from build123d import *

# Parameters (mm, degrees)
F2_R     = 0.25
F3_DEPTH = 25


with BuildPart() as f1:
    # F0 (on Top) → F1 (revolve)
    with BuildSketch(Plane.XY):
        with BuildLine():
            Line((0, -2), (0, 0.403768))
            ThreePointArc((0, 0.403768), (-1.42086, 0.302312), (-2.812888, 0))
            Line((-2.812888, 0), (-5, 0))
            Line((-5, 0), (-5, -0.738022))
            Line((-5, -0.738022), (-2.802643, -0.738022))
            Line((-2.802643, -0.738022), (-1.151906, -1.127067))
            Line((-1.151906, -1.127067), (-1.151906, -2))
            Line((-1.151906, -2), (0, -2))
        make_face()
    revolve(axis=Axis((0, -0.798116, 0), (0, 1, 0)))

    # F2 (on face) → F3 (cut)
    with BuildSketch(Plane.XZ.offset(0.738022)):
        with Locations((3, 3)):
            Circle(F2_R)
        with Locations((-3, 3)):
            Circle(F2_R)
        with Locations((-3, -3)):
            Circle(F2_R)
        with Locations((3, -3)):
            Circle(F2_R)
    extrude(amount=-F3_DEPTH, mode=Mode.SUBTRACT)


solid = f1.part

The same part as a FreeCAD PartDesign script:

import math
import FreeCAD as App
import Part
import Sketcher
Q = App.Units.Quantity

doc = App.newDocument("Part")
body = doc.addObject("PartDesign::Body", "Body")

sketch1 = doc.addObject("Sketcher::SketchObject", "Sketch")
body.addObject(sketch1)
sketch1.AttachmentSupport = (doc.XY_Plane, [""])
sketch1.MapMode = "FlatFace"
sketch1.addGeometry([
    Part.LineSegment(App.Vector(0, -2, 0), App.Vector(0, 0.4, 0)),
    Part.ArcOfCircle(Part.Circle(App.Vector(0, -9.6, 0), App.Vector(0, 0, 1), 10), math.radians(90), math.radians(106.34)),
    Part.LineSegment(App.Vector(-2.8, 0, 0), App.Vector(-5, 0, 0)),
    Part.LineSegment(App.Vector(-5, 0, 0), App.Vector(-5, -0.7, 0)),
    Part.LineSegment(App.Vector(-5, -0.7, 0), App.Vector(-2.8, -0.7, 0)),
    Part.LineSegment(App.Vector(-2.8, -0.7, 0), App.Vector(-1.2, -1.1, 0)),
    Part.LineSegment(App.Vector(-1.2, -1.1, 0), App.Vector(-1.2, -2, 0)),
    Part.LineSegment(App.Vector(-1.2, -2, 0), App.Vector(0, -2, 0)),
], False)
sketch1.addConstraint([
    Sketcher.Constraint("Coincident", 0, 2, 1, 1),
    Sketcher.Constraint("Coincident", 1, 2, 2, 1),
    Sketcher.Constraint("Coincident", 2, 2, 3, 1),
    Sketcher.Constraint("Coincident", 3, 2, 4, 1),
    Sketcher.Constraint("Coincident", 4, 2, 5, 1),
    Sketcher.Constraint("Coincident", 5, 2, 6, 1),
    Sketcher.Constraint("Coincident", 6, 2, 7, 1),
    Sketcher.Constraint("Coincident", 7, 2, 0, 1),
    Sketcher.Constraint("Vertical", 0),
    Sketcher.Constraint("Horizontal", 2),
    Sketcher.Constraint("Vertical", 3),
    Sketcher.Constraint("Horizontal", 4),
    Sketcher.Constraint("Vertical", 6),
    Sketcher.Constraint("Horizontal", 7),
    Sketcher.Constraint("PointOnObject", 0, 2, -2),
    Sketcher.Constraint("PointOnObject", 1, 2, -1),
    Sketcher.Constraint("DistanceX", 2, 2, -1, 1, Q("5 mm")),
    Sketcher.Constraint("DistanceY", 6, 2, -1, 1, Q("2 mm")),
    Sketcher.Constraint("Radius", 1, Q("9.999938 mm")),
    Sketcher.Constraint("DistanceX", 2, 2, 2, 1, Q("2.187112 mm")),
    Sketcher.Constraint("DistanceY", 3, 2, 3, 1, Q("0.738022 mm")),
    Sketcher.Constraint("DistanceX", 4, 1, 4, 2, Q("2.197357 mm")),
    Sketcher.Constraint("DistanceX", 7, 1, 7, 2, Q("1.151906 mm")),
    Sketcher.Constraint("DistanceY", 0, 1, 0, 2, Q("2.403768 mm")),
    Sketcher.Constraint("DistanceY", 6, 2, 6, 1, Q("0.872933 mm")),
])
revolution = doc.addObject("PartDesign::Revolution", "Revolution")
body.addObject(revolution)
revolution.Profile = sketch1
revolution.ReferenceAxis = (sketch1, ["V_Axis"])
revolution.Angle = 360

sketch2 = doc.addObject("Sketcher::SketchObject", "Sketch001")
body.addObject(sketch2)
sketch2.AttachmentSupport = (doc.XZ_Plane, [""])
sketch2.MapMode = "FlatFace"
sketch2.AttachmentOffset = App.Placement(App.Vector(0, 0, 0.738022), App.Rotation())
sketch2.addGeometry([
    Part.Circle(App.Vector(3, 3, 0), App.Vector(0, 0, 1), 0.25),
    Part.Circle(App.Vector(-3, 3, 0), App.Vector(0, 0, 1), 0.25),
    Part.Circle(App.Vector(-3, -3, 0), App.Vector(0, 0, 1), 0.25),
    Part.Circle(App.Vector(3, -3, 0), App.Vector(0, 0, 1), 0.25),
], False)
sketch2.addConstraint([
    Sketcher.Constraint("Equal", 0, 1),
    Sketcher.Constraint("Equal", 1, 2),
    Sketcher.Constraint("Equal", 2, 3),
    Sketcher.Constraint("Symmetric", 0, 3, 2, 3, -1, 1),
    Sketcher.Constraint("Symmetric", 1, 3, 3, 3, -1, 1),
    Sketcher.Constraint("Symmetric", 0, 3, 1, 3, -2),
    Sketcher.Constraint("Diameter", 0, Q("0.5 mm")),
    Sketcher.Constraint("DistanceX", -1, 1, 0, 3, Q("3 mm")),
    Sketcher.Constraint("DistanceY", -1, 1, 0, 3, Q("3 mm")),
])
pocket1 = doc.addObject("PartDesign::Pocket", "Pocket")
body.addObject(pocket1)
pocket1.Profile = sketch2
pocket1.Length = 25

doc.recompute()
